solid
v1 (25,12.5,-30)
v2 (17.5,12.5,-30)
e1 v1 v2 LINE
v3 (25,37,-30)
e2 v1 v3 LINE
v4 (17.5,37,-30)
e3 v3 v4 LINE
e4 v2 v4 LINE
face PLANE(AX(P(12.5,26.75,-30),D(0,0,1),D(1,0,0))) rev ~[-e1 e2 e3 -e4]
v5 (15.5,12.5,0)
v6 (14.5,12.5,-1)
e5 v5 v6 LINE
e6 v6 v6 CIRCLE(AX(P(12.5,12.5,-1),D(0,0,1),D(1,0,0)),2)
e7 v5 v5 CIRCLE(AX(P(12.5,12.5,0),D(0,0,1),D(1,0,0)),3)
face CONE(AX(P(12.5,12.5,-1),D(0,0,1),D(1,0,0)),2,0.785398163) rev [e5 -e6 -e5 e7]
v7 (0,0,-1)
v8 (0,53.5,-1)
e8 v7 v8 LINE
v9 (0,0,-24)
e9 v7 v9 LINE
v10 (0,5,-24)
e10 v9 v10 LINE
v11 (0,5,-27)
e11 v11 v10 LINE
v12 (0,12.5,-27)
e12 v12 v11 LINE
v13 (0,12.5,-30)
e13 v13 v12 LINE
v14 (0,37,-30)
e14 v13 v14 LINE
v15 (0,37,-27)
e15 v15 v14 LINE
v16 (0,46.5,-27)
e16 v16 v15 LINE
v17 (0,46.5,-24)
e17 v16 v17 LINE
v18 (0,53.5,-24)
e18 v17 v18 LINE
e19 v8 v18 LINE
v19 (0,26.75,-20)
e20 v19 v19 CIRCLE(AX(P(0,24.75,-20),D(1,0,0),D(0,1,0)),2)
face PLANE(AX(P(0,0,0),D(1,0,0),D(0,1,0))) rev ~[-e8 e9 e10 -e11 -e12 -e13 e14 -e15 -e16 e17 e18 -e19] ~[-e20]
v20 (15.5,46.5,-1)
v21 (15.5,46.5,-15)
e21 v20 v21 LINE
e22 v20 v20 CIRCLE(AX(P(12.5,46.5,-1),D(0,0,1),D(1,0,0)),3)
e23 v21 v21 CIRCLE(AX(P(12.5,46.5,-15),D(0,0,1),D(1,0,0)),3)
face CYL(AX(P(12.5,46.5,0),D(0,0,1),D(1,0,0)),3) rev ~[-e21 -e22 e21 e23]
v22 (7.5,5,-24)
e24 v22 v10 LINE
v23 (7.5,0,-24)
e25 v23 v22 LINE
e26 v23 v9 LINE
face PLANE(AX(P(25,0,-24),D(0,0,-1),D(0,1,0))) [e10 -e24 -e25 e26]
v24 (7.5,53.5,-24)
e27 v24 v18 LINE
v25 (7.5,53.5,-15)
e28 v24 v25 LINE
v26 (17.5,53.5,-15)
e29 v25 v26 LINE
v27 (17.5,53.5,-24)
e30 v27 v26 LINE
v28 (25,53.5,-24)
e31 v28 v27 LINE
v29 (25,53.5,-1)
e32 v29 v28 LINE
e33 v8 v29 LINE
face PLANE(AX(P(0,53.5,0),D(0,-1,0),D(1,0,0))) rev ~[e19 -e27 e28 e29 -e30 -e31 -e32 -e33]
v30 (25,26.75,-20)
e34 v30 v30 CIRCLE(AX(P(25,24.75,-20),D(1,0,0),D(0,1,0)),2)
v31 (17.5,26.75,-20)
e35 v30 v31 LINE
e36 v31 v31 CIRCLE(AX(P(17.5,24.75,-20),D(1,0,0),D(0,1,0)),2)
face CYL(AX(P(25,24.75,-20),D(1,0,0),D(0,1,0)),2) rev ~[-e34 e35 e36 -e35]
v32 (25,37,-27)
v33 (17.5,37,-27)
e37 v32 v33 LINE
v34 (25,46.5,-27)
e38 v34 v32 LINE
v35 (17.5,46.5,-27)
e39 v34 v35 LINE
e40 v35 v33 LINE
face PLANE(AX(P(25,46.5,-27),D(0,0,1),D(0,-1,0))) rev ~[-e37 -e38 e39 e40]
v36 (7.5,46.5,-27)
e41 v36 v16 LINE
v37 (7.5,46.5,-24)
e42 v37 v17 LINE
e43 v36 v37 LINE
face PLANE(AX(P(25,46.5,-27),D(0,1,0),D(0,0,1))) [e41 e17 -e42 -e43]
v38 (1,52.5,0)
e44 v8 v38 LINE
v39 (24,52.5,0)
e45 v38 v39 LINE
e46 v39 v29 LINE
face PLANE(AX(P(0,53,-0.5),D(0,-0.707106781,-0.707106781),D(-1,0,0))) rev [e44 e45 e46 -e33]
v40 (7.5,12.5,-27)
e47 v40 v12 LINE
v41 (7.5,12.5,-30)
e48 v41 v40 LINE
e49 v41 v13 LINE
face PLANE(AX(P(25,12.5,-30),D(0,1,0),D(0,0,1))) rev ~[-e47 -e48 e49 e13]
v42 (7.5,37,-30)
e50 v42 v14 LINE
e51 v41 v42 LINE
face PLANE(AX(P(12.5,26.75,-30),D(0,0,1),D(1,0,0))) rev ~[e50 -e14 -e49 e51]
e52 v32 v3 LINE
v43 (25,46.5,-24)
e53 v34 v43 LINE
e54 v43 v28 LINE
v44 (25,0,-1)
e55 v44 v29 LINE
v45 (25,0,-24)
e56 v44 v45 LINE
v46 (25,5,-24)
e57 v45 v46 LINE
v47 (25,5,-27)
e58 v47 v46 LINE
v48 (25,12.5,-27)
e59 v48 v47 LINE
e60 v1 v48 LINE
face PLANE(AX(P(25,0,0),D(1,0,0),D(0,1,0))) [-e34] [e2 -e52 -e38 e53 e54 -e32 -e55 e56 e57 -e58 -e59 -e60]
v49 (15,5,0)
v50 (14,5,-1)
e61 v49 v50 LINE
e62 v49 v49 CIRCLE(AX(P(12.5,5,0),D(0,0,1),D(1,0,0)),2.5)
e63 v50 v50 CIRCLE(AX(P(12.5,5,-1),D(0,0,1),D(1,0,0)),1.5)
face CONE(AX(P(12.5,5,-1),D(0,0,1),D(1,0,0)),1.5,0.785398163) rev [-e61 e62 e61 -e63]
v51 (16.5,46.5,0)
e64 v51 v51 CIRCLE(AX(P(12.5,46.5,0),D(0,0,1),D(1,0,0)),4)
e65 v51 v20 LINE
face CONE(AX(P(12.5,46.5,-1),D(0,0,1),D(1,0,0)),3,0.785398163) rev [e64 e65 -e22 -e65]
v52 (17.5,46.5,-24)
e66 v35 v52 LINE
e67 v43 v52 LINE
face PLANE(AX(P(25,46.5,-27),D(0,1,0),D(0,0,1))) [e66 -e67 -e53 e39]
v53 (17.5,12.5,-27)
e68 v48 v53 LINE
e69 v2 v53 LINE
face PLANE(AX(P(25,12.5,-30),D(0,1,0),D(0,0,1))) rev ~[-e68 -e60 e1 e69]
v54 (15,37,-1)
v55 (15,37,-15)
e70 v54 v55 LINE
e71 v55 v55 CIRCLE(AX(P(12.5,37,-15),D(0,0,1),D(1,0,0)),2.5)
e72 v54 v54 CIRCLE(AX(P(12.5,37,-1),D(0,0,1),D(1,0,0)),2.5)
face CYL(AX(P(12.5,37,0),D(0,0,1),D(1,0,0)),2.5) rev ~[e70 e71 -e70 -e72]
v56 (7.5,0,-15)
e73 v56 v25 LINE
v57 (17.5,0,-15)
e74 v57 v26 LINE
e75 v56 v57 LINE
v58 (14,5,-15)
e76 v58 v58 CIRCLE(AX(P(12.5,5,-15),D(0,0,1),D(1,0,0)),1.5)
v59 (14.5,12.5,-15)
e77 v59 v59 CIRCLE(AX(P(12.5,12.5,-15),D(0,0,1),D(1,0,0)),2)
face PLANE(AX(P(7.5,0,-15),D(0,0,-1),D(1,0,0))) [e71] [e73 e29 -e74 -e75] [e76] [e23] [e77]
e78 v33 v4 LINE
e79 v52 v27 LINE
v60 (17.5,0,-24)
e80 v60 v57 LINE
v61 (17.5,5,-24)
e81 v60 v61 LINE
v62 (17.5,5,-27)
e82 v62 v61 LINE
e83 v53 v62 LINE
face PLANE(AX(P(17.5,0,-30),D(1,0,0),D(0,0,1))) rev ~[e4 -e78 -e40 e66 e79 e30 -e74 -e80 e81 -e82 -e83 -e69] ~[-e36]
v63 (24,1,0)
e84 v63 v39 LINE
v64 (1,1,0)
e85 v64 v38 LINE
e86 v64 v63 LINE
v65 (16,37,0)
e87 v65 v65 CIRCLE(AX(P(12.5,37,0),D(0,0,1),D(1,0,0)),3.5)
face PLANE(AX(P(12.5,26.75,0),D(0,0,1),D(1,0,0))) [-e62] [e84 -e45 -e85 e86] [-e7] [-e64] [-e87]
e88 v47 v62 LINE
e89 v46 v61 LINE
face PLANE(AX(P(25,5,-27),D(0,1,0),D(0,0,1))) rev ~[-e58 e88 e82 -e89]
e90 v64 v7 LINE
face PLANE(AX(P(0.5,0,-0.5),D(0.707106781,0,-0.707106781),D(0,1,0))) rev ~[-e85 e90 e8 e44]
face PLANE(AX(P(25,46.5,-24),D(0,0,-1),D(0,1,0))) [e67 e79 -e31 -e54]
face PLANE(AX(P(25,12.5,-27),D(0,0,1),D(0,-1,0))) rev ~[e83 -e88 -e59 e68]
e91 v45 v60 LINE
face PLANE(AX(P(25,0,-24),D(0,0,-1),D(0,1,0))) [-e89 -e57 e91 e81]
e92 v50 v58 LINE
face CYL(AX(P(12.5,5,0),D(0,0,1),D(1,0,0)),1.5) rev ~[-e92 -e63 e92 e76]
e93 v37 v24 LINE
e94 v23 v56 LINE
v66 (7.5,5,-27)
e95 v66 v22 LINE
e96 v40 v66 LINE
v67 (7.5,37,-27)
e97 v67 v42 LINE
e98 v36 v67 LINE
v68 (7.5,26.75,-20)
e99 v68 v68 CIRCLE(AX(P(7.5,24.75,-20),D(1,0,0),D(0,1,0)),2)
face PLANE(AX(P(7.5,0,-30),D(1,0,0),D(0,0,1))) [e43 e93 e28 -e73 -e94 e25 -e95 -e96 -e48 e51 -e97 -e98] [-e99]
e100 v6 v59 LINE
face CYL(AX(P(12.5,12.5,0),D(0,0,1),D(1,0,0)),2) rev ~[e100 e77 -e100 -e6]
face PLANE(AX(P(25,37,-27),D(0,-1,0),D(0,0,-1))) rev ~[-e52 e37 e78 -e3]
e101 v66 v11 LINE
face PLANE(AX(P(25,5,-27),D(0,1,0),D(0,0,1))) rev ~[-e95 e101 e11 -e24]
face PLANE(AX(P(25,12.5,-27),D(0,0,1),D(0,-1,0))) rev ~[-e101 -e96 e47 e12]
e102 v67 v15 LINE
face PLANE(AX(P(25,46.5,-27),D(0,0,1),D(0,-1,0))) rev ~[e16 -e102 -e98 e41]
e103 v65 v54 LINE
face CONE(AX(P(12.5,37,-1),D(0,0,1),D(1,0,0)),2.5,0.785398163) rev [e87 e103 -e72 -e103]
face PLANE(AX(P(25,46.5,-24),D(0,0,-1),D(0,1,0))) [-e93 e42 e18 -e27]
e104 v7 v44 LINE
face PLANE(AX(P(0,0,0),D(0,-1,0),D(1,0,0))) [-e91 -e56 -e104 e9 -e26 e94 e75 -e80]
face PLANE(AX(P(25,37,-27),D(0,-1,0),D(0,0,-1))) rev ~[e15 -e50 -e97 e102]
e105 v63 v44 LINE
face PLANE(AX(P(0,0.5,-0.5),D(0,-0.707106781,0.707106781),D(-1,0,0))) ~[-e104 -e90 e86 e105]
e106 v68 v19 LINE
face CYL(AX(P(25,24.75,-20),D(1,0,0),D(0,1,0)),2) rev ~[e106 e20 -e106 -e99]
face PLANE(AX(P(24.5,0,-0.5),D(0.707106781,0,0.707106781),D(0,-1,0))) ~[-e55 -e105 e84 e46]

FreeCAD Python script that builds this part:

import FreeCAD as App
import Part
import Sketcher

V = App.Vector
Q = App.Units.Quantity


def edges_at(feature, points):
    """Names of the edges that pass closest to the given points."""
    edges = feature.Shape.Edges
    near = lambda p: min(range(len(edges)), key=lambda i: edges[i].distToShape(Part.Vertex(*p))[0])
    return sorted({f"Edge{near(p) + 1}" for p in points})


def add_polygon(sketch, points):
    """Adds a closed chain of lines whose ends are joined by coincident constraints."""
    first, n = sketch.GeometryCount, len(points)
    for a, b in zip(points, points[1:] + points[:1]):
        sketch.addGeometry(Part.LineSegment(App.Vector(*a, 0), App.Vector(*b, 0)), False)
    for i in range(n):
        sketch.addConstraint(Sketcher.Constraint("Coincident", first + i, 2, first + (i + 1) % n, 1))

doc = App.newDocument("Part")
params = doc.addObject("Spreadsheet::Sheet", "Params")
for row, (alias, value) in enumerate([
    ("sketch1_diameter", "3 mm"),
    ("sketch1_diameter2", "4 mm"),
    ("sketch1_diameter3", "5 mm"),
    ("sketch1_diameter4", "6 mm"),
    ("sketch1_width", "25 mm"),
    ("pad1_length", "30 mm"),
    ("sketch2_width", "10 mm"),
    ("sketch2_height", "15 mm"),
    ("sketch3_width", "7 mm"),
    ("sketch3_width2", "5 mm"),
    ("sketch3_height", "3 mm"),
    ("sketch3_width3", "9.5 mm"),
    ("sketch3_width4", "12.5 mm"),
    ("chamfer_size", "1 mm"),
    ("sketch4_diameter", "4 mm"),
], start=1):
    params.set(f"A{row}", alias)
    params.set(f"B{row}", "=" + value)
    params.setAlias(f"B{row}", alias)

body = doc.addObject("PartDesign::Body", "Body")

# Sketch on XY plane
sketch1 = body.newObject("Sketcher::SketchObject", "Sketch")
sketch1.AttachmentSupport = (doc.getObject("XY_Plane"), [""])
sketch1.MapMode = "FlatFace"
add_polygon(sketch1, [(0, 53.5), (0, 0), (25, 0), (25, 53.5)])  # lines 0-3
sketch1.addGeometry(Part.Circle(V(12.5, 5, 0), V(0, 0, 1), 1.5), False)  # 4
sketch1.addGeometry(Part.Circle(V(12.5, 12.5, 0), V(0, 0, 1), 2), False)  # 5
sketch1.addGeometry(Part.Circle(V(12.5, 37, 0), V(0, 0, 1), 2.5), False)  # 6
sketch1.addGeometry(Part.Circle(V(12.5, 46.5, 0), V(0, 0, 1), 3), False)  # 7
sketch1.addConstraint([
    Sketcher.Constraint("Vertical", 0),
    Sketcher.Constraint("Horizontal", 1),
    Sketcher.Constraint("Vertical", 2),
    Sketcher.Constraint("Horizontal", 3),
    Sketcher.Constraint("Coincident", 0, 2, -1, 1),
    Sketcher.Constraint("Vertical", 4, 3, 5, 3),
    Sketcher.Constraint("Vertical", 5, 3, 6, 3),
    Sketcher.Constraint("Vertical", 6, 3, 7, 3),
    Sketcher.Constraint("Diameter", 4, Q("3 mm")),
    Sketcher.Constraint("Diameter", 5, Q("4 mm")),
    Sketcher.Constraint("Diameter", 6, Q("5 mm")),
    Sketcher.Constraint("Diameter", 7, Q("6 mm")),
    Sketcher.Constraint("DistanceX", 1, 1, 1, 2, Q("25 mm")),
    Sketcher.Constraint("DistanceY", 0, 2, 0, 1, Q("53.5 mm")),
    Sketcher.Constraint("DistanceY", -1, 1, 4, 3, Q("5 mm")),
    Sketcher.Constraint("DistanceY", -1, 1, 6, 3, Q("37 mm")),
    Sketcher.Constraint("DistanceY", 5, 3, 7, 3, Q("34 mm")),
    Sketcher.Constraint("DistanceY", 7, 3, 2, 2, Q("7 mm")),
    Sketcher.Constraint("DistanceX", -1, 1, 4, 3, Q("12.5 mm")),
])
sketch1.setExpression("Constraints[12]", "Params.sketch1_diameter")
sketch1.setExpression("Constraints[13]", "Params.sketch1_diameter2")
sketch1.setExpression("Constraints[14]", "Params.sketch1_diameter3")
sketch1.setExpression("Constraints[15]", "Params.sketch1_diameter4")
sketch1.setExpression("Constraints[16]", "Params.sketch1_width")
pad1 = body.newObject("PartDesign::Pad", "Pad")
pad1.Profile = sketch1
pad1.setExpression("Length", "Params.pad1_length")
pad1.Reversed = True

# Sketch on XZ plane
sketch2 = body.newObject("Sketcher::SketchObject", "Sketch001")
sketch2.AttachmentSupport = (doc.getObject("XZ_Plane"), [""])
sketch2.MapMode = "FlatFace"
add_polygon(sketch2, [(8, -15), (8, -30), (18, -30), (18, -15)])  # lines 0-3
sketch2.addConstraint([
    Sketcher.Constraint("Vertical", 0),
    Sketcher.Constraint("Horizontal", 1),
    Sketcher.Constraint("Vertical", 2),
    Sketcher.Constraint("Horizontal", 3),
    Sketcher.Constraint("DistanceX", 1, 1, 1, 2, Q("10 mm")),
    Sketcher.Constraint("DistanceY", 0, 2, 0, 1, Q("15 mm")),
    Sketcher.Constraint("DistanceY", 0, 2, -1, 1, Q("30 mm")),
    Sketcher.Constraint("DistanceX", -1, 1, 0, 2, Q("7.5 mm")),
])
sketch2.setExpression("Constraints[8]", "Params.sketch2_width")
sketch2.setExpression("Constraints[9]", "Params.sketch2_height")
pocket1 = body.newObject("PartDesign::Pocket", "Pocket")
pocket1.Profile = sketch2
pocket1.Type = "ThroughAll"

# Sketch on YZ plane
sketch3 = body.newObject("Sketcher::SketchObject", "Sketch002")
sketch3.AttachmentSupport = (doc.getObject("YZ_Plane"), [""])
sketch3.MapMode = "FlatFace"
sketch3.AttachmentOffset = App.Placement(V(0, 0, 25), App.Rotation())
add_polygon(sketch3, [(46.5, -24), (46.5, -27), (37, -27), (37, -30), (53.5, -30), (53.5, -24)])  # lines 0-5
add_polygon(sketch3, [(0, -30), (12.5, -30), (12.5, -27), (5, -27), (5, -24), (0, -24)])  # lines 6-11
sketch3.addConstraint([
    Sketcher.Constraint("Vertical", 0),
    Sketcher.Constraint("Horizontal", 1),
    Sketcher.Constraint("Vertical", 2),
    Sketcher.Constraint("Horizontal", 3),
    Sketcher.Constraint("Vertical", 4),
    Sketcher.Constraint("Horizontal", 5),
    Sketcher.Constraint("Horizontal", 6),
    Sketcher.Constraint("Vertical", 7),
    Sketcher.Constraint("Horizontal", 8),
    Sketcher.Constraint("Vertical", 9),
    Sketcher.Constraint("Horizontal", 10),
    Sketcher.Constraint("Vertical", 11),
    Sketcher.Constraint("PointOnObject", 10, 2, -2),
    Sketcher.Constraint("Horizontal", 3, 2, 6, 2),
    Sketcher.Constraint("Horizontal", 1, 2, 7, 2),
    Sketcher.Constraint("Horizontal", 5, 2, 9, 2),
    Sketcher.Constraint("Equal", 0, 2),
    Sketcher.Constraint("DistanceX", 5, 2, 5, 1, Q("7 mm")),
    Sketcher.Constraint("DistanceX", 10, 2, 10, 1, Q("5 mm")),
    Sketcher.Constraint("DistanceY", 0, 2, 0, 1, Q("3 mm")),
    Sketcher.Constraint("DistanceX", 1, 2, 1, 1, Q("9.5 mm")),
    Sketcher.Constraint("DistanceX", 6, 1, 6, 2, Q("12.5 mm")),
    Sketcher.Constraint("DistanceY", 0, 2, -1, 1, Q("27 mm")),
    Sketcher.Constraint("DistanceX", -1, 1, 1, 2, Q("37 mm")),
])
sketch3.setExpression("Constraints[29]", "Params.sketch3_width")
sketch3.setExpression("Constraints[30]", "Params.sketch3_width2")
sketch3.setExpression("Constraints[31]", "Params.sketch3_height")
sketch3.setExpression("Constraints[32]", "Params.sketch3_width3")
sketch3.setExpression("Constraints[33]", "Params.sketch3_width4")
pocket2 = body.newObject("PartDesign::Pocket", "Pocket001")
pocket2.Profile = sketch3
pocket2.Type = "ThroughAll"
doc.recompute()

chamfer = body.newObject("PartDesign::Chamfer", "Chamfer")
chamfer.Base = (pocket2, edges_at(pocket2, [
    (11, 5, 0),
    (10.5, 12.5, 0),
    (10, 37, 0),
    (9.5, 46.5, 0),
    (12.5, 0, 0),
    (0, 26.75, 0),
    (25, 26.75, 0),
    (12.5, 53.5, 0),
]))
chamfer.setExpression("Size", "Params.chamfer_size")

# Sketch on YZ plane
sketch4 = body.newObject("Sketcher::SketchObject", "Sketch003")
sketch4.AttachmentSupport = (doc.getObject("YZ_Plane"), [""])
sketch4.MapMode = "FlatFace"
sketch4.AttachmentOffset = App.Placement(V(0, 0, 25), App.Rotation())
sketch4.addGeometry(Part.Circle(V(24.8, -20, 0), V(0, 0, 1), 2), False)
sketch4.addConstraint([
    Sketcher.Constraint("Diameter", 0, Q("4 mm")),
    Sketcher.Constraint("DistanceY", 0, 3, -1, 1, Q("20 mm")),
    Sketcher.Constraint("DistanceX", -1, 1, 0, 3, Q("24.75 mm")),
])
sketch4.setExpression("Constraints[0]", "Params.sketch4_diameter")
pocket3 = body.newObject("PartDesign::Pocket", "Pocket002")
pocket3.Profile = sketch4
pocket3.Type = "ThroughAll"

doc.recompute()
